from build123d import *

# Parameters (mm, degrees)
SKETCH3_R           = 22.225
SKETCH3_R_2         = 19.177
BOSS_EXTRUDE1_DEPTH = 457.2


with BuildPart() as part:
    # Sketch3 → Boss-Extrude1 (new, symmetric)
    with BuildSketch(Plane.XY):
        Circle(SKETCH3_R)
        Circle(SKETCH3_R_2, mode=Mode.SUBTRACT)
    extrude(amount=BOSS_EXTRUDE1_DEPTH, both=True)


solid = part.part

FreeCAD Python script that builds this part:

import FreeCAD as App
import Part
import Sketcher

V = App.Vector
Q = App.Units.Quantity

doc = App.newDocument("Part")
body = doc.addObject("PartDesign::Body", "Body")

# Sketch on XY plane
sketch1 = body.newObject("Sketcher::SketchObject", "Sketch")
sketch1.AttachmentSupport = (doc.getObject("XY_Plane"), [""])
sketch1.MapMode = "FlatFace"
sketch1.addGeometry([
    Part.Circle(V(0, 0, 0), V(0, 0, 1), 22),
    Part.Circle(V(0, 0, 0), V(0, 0, 1), 19),
], False)
sketch1.addConstraint([
    Sketcher.Constraint("Coincident", 0, 3, -1, 1),
    Sketcher.Constraint("Coincident", 1, 3, -1, 1),
    Sketcher.Constraint("Diameter", 0, Q("1.75 in")),
    Sketcher.Constraint("Diameter", 1, Q("1.51 in")),
])
pad1 = body.newObject("PartDesign::Pad", "Pad")
pad1.Profile = sketch1
pad1.Length = Q("36 in")
pad1.Midplane = True

doc.recompute()
